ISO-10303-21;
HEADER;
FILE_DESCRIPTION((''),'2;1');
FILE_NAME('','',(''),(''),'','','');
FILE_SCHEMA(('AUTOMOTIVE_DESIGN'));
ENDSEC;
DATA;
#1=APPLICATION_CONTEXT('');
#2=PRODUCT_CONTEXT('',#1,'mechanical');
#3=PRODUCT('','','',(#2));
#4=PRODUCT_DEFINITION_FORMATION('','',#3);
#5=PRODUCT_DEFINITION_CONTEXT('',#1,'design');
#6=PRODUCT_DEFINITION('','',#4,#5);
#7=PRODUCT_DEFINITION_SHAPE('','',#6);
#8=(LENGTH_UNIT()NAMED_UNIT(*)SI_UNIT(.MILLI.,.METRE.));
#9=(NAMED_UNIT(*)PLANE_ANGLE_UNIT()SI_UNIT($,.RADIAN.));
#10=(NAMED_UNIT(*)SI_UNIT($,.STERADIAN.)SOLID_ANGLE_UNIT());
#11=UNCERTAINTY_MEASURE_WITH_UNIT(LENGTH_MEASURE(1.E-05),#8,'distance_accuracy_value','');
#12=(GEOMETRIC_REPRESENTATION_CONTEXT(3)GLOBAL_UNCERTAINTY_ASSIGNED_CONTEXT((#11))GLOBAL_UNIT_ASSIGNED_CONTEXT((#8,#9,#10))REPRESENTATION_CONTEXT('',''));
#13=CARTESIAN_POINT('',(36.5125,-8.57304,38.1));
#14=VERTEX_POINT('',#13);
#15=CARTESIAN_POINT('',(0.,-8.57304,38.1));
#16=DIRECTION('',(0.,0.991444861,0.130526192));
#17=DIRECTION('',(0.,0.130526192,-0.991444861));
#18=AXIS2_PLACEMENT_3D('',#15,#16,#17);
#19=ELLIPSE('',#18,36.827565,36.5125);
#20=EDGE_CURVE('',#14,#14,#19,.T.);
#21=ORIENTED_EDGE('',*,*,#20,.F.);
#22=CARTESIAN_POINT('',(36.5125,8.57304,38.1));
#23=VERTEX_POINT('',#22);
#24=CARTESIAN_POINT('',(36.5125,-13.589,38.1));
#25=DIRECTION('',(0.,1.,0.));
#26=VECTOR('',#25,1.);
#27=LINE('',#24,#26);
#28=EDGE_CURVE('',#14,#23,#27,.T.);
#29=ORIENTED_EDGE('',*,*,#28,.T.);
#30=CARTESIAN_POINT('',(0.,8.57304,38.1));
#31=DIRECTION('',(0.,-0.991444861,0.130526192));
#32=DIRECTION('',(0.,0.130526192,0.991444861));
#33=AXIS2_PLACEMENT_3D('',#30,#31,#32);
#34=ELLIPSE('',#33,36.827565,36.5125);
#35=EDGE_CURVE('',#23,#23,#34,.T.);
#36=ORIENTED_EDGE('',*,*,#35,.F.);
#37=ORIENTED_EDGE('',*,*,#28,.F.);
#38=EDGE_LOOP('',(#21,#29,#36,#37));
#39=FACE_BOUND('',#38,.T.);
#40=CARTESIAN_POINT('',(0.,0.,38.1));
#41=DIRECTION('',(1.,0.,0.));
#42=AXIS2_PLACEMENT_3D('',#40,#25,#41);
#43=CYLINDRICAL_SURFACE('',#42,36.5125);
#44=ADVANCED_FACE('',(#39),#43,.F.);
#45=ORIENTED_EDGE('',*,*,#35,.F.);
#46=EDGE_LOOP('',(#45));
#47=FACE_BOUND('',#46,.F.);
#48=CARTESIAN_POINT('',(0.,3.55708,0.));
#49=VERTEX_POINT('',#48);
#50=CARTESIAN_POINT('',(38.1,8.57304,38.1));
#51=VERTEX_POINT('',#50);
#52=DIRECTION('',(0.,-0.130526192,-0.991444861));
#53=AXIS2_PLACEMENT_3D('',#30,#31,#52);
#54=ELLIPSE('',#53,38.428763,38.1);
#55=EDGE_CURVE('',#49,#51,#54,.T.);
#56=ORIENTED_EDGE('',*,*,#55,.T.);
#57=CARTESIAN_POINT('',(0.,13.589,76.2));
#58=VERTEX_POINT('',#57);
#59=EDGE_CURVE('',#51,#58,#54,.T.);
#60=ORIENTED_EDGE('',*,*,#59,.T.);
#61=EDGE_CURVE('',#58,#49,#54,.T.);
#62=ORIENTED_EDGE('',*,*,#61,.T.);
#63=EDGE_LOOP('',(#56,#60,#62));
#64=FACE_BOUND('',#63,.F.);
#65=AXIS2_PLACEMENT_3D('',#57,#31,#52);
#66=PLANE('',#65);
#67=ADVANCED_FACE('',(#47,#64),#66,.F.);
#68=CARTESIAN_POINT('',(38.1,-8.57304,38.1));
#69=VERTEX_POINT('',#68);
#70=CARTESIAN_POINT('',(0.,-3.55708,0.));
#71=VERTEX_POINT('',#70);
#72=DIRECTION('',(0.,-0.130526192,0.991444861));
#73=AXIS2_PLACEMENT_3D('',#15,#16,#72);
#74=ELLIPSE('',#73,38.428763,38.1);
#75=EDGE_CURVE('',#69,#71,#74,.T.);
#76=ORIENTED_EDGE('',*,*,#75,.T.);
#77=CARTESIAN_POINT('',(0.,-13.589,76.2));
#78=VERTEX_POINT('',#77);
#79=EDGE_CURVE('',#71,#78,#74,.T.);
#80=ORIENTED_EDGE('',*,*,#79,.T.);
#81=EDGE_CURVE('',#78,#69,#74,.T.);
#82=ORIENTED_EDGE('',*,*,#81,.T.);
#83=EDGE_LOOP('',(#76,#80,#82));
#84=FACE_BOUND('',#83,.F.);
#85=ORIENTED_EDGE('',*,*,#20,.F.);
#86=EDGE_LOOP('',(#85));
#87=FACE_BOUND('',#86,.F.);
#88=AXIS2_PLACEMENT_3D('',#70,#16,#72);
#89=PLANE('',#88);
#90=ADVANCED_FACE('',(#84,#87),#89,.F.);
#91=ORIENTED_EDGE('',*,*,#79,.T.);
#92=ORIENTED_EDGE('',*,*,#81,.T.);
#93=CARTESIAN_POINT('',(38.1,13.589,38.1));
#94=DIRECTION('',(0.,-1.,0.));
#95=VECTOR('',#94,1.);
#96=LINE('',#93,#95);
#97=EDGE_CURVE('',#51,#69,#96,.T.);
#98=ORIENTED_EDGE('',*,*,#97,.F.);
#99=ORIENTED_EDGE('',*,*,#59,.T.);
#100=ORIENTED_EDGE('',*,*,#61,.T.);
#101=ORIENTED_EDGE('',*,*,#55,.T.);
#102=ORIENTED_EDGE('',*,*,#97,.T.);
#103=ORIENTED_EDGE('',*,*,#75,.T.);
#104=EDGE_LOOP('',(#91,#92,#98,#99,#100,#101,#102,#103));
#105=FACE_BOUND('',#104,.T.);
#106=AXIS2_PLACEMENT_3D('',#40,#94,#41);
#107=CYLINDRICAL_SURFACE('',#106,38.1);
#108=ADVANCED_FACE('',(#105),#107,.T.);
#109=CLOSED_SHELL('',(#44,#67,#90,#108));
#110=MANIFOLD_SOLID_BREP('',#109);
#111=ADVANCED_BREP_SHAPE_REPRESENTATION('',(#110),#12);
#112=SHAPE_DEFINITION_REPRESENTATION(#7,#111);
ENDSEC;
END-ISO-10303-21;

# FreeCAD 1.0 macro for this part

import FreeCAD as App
import Part
import Sketcher

V = App.Vector
Q = App.Units.Quantity


def add_polygon(sketch, points):
    """Adds a closed chain of lines whose ends are joined by coincident constraints."""
    first, n = sketch.GeometryCount, len(points)
    for a, b in zip(points, points[1:] + points[:1]):
        sketch.addGeometry(Part.LineSegment(App.Vector(*a, 0), App.Vector(*b, 0)), False)
    for i in range(n):
        sketch.addConstraint(Sketcher.Constraint("Coincident", first + i, 2, first + (i + 1) % n, 1))

doc = App.newDocument("Part")
body = doc.addObject("PartDesign::Body", "Body")

# Sketch on XZ plane
sketch1 = body.newObject("Sketcher::SketchObject", "Sketch")
sketch1.AttachmentSupport = (doc.getObject("XZ_Plane"), [""])
sketch1.MapMode = "FlatFace"
sketch1.addGeometry([
    Part.Circle(V(0, 38.1, 0), V(0, 0, 1), 38.1),
    Part.Circle(V(0, 38.1, 0), V(0, 0, 1), 36.5125),
], False)
sketch1.addConstraint([
    Sketcher.Constraint("Coincident", 1, 3, 0, 3),
    Sketcher.Constraint("PointOnObject", 0, 3, -2),
    Sketcher.Constraint("Diameter", 0, Q("3 in")),
    Sketcher.Constraint("Diameter", 1, Q("2.875 in")),
    Sketcher.Constraint("DistanceY", -1, 1, 0, 3, Q("1.5 in")),
])
pad1 = body.newObject("PartDesign::Pad", "Pad")
pad1.Profile = sketch1
pad1.Length = Q("1.07 in")
pad1.Midplane = True

# Sketch on YZ plane
sketch2 = body.newObject("Sketcher::SketchObject", "Sketch001")
sketch2.AttachmentSupport = (doc.getObject("YZ_Plane"), [""])
sketch2.MapMode = "FlatFace"
add_polygon(sketch2, [(3.55708, 0), (-3.55708, 0), (-13.589, 76.2), (-13.589, -15.068145), (13.589, -15.068145), (13.589, 76.2)])  # lines 0-5
sketch2.addConstraint([
    Sketcher.Constraint("Horizontal", 0),
    Sketcher.Constraint("Vertical", 2),
    Sketcher.Constraint("Horizontal", 3),
    Sketcher.Constraint("Vertical", 4),
    Sketcher.Constraint("Symmetric", 0, 2, 5, 2, -1, 1),
    Sketcher.Constraint("Symmetric", 1, 2, 4, 2, -2),
    Sketcher.Constraint("DistanceY", -1, 1, 1, 2, Q("3 in")),
    Sketcher.Constraint("DistanceX", 3, 1, 3, 2, Q("1.07 in")),
    Sketcher.Constraint("Angle", 1, Q("97.5 deg")),
    Sketcher.Constraint("DistanceY", 2, 2, 2, 1, Q("91.268145 mm")),
])
pocket1 = body.newObject("PartDesign::Pocket", "Pocket")
pocket1.Profile = sketch2
pocket1.Length = Q("5 in")
pocket1.Midplane = True

doc.recompute()
